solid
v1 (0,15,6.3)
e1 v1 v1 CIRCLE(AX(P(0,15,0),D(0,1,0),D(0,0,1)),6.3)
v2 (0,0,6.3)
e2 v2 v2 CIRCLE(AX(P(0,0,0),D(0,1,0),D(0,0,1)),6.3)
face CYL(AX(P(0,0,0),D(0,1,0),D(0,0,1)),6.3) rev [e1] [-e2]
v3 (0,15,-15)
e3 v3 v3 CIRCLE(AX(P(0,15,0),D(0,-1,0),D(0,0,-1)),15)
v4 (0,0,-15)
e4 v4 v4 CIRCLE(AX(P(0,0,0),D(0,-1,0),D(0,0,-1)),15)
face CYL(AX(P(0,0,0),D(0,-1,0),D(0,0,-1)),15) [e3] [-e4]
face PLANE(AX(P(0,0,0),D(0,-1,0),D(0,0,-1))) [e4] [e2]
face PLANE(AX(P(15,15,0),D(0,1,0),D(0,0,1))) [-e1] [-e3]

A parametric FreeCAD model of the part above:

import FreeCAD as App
import Part
import Sketcher
Q = App.Units.Quantity

doc = App.newDocument("Part")
body = doc.addObject("PartDesign::Body", "Body")

sketch1 = doc.addObject("Sketcher::SketchObject", "Sketch")
body.addObject(sketch1)
sketch1.AttachmentSupport = (doc.XY_Plane, [""])
sketch1.MapMode = "FlatFace"
sketch1.addGeometry([
    Part.LineSegment(App.Vector(0, 15, 0), App.Vector(0, 0, 0)),
    Part.LineSegment(App.Vector(0, 0, 0), App.Vector(15, 0, 0)),
    Part.LineSegment(App.Vector(15, 0, 0), App.Vector(15, 15, 0)),
    Part.LineSegment(App.Vector(15, 15, 0), App.Vector(0, 15, 0)),
], False)
sketch1.addConstraint([
    Sketcher.Constraint("Coincident", 0, 2, 1, 1),
    Sketcher.Constraint("Coincident", 1, 2, 2, 1),
    Sketcher.Constraint("Coincident", 2, 2, 3, 1),
    Sketcher.Constraint("Coincident", 3, 2, 0, 1),
    Sketcher.Constraint("Vertical", 0),
    Sketcher.Constraint("Horizontal", 1),
    Sketcher.Constraint("Vertical", 2),
    Sketcher.Constraint("Horizontal", 3),
    Sketcher.Constraint("Coincident", 0, 2, -1, 1),
    Sketcher.Constraint("Equal", 3, 0),
    Sketcher.Constraint("DistanceX", 1, 1, 1, 2, Q("15 mm")),
])
revolution = doc.addObject("PartDesign::Revolution", "Revolution")
body.addObject(revolution)
revolution.Profile = sketch1
revolution.ReferenceAxis = (sketch1, ["V_Axis"])
revolution.Angle = 360

sketch2 = doc.addObject("Sketcher::SketchObject", "Sketch001")
body.addObject(sketch2)
sketch2.AttachmentSupport = (doc.XZ_Plane, [""])
sketch2.MapMode = "FlatFace"
sketch2.AttachmentOffset = App.Placement(App.Vector(0, 0, -15), App.Rotation())
sketch2.addGeometry(Part.Circle(App.Vector(0, 0, 0), App.Vector(0, 0, 1), 6), False)
sketch2.addConstraint([
    Sketcher.Constraint("Coincident", 0, 3, -1, 1),
    Sketcher.Constraint("Diameter", 0, Q("12.6 mm")),
])
pocket1 = doc.addObject("PartDesign::Pocket", "Pocket")
body.addObject(pocket1)
pocket1.Profile = sketch2
pocket1.Type = "ThroughAll"
pocket1.Reversed = True

doc.recompute()
